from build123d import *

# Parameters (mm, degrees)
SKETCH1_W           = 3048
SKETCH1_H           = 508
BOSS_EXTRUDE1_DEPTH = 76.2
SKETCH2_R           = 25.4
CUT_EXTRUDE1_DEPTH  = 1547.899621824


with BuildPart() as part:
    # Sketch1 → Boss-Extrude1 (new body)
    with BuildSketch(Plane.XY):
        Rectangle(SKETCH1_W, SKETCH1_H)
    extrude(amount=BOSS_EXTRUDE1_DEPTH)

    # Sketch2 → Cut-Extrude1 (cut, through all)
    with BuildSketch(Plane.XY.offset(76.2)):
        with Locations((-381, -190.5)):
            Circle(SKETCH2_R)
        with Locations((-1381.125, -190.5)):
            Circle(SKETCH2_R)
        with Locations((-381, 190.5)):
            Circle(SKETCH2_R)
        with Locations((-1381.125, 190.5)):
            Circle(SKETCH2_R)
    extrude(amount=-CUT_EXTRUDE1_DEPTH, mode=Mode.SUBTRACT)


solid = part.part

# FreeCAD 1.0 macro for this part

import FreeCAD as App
import Part
import Sketcher

V = App.Vector
Q = App.Units.Quantity


def add_polygon(sketch, points):
    """Adds a closed chain of lines whose ends are joined by coincident constraints."""
    first, n = sketch.GeometryCount, len(points)
    for a, b in zip(points, points[1:] + points[:1]):
        sketch.addGeometry(Part.LineSegment(App.Vector(*a, 0), App.Vector(*b, 0)), False)
    for i in range(n):
        sketch.addConstraint(Sketcher.Constraint("Coincident", first + i, 2, first + (i + 1) % n, 1))

doc = App.newDocument("Part")
body = doc.addObject("PartDesign::Body", "Body")

# Sketch on XY plane
sketch1 = doc.addObject("Sketcher::SketchObject", "Sketch")
body.addObject(sketch1)
sketch1.AttachmentSupport = (doc.XY_Plane, [""])
sketch1.MapMode = "FlatFace"
add_polygon(sketch1, [(-1524, 254), (-1524, -254), (1524, -254), (1524, 254)])  # lines 0-3
sketch1.addConstraint(Sketcher.Constraint("Vertical", 0))
sketch1.addConstraint(Sketcher.Constraint("Horizontal", 1))
sketch1.addConstraint(Sketcher.Constraint("Vertical", 2))
sketch1.addConstraint(Sketcher.Constraint("Horizontal", 3))
sketch1.addConstraint(Sketcher.Constraint("Symmetric", 0, 2, 2, 2, -1, 1))
sketch1.addConstraint(Sketcher.Constraint("DistanceX", 1, 1, 1, 2, Q("120 in")))
sketch1.addConstraint(Sketcher.Constraint("DistanceY", 0, 2, 0, 1, Q("20 in")))
pad1 = doc.addObject("PartDesign::Pad", "Pad")
body.addObject(pad1)
pad1.Profile = sketch1
pad1.Length = Q("3 in")

# Sketch on XY plane
sketch2 = doc.addObject("Sketcher::SketchObject", "Sketch001")
body.addObject(sketch2)
sketch2.AttachmentSupport = (doc.XY_Plane, [""])
sketch2.MapMode = "FlatFace"
sketch2.AttachmentOffset = App.Placement(V(0, 0, 3 * 25.4), App.Rotation())
sketch2.addGeometry(Part.Circle(V(-381, -190.5, 0), V(0, 0, 1), 25.4), False)
sketch2.addGeometry(Part.Circle(V(-1381.125, -190.5, 0), V(0, 0, 1), 25.4), False)
sketch2.addGeometry(Part.Circle(V(-381, 190.5, 0), V(0, 0, 1), 25.4), False)
sketch2.addGeometry(Part.Circle(V(-1381.125, 190.5, 0), V(0, 0, 1), 25.4), False)
sketch2.addConstraint(Sketcher.Constraint("Equal", 0, 1))
sketch2.addConstraint(Sketcher.Constraint("Equal", 1, 2))
sketch2.addConstraint(Sketcher.Constraint("Equal", 2, 3))
sketch2.addConstraint(Sketcher.Constraint("Symmetric", 0, 3, 2, 3, -1))
sketch2.addConstraint(Sketcher.Constraint("Symmetric", 1, 3, 3, 3, -1))
sketch2.addConstraint(Sketcher.Constraint("Horizontal", 0, 3, 1, 3))
sketch2.addConstraint(Sketcher.Constraint("Diameter", 0, Q("2 in")))
sketch2.addConstraint(Sketcher.Constraint("DistanceX", 0, 3, -1, 1, Q("15 in")))
sketch2.addConstraint(Sketcher.Constraint("DistanceY", 0, 3, 2, 3, Q("15 in")))
sketch2.addConstraint(Sketcher.Constraint("DistanceX", 1, 3, -1, 1, Q("54.375 in")))
pocket1 = doc.addObject("PartDesign::Pocket", "Pocket")
body.addObject(pocket1)
pocket1.Profile = sketch2
pocket1.Type = "ThroughAll"

doc.recompute()
